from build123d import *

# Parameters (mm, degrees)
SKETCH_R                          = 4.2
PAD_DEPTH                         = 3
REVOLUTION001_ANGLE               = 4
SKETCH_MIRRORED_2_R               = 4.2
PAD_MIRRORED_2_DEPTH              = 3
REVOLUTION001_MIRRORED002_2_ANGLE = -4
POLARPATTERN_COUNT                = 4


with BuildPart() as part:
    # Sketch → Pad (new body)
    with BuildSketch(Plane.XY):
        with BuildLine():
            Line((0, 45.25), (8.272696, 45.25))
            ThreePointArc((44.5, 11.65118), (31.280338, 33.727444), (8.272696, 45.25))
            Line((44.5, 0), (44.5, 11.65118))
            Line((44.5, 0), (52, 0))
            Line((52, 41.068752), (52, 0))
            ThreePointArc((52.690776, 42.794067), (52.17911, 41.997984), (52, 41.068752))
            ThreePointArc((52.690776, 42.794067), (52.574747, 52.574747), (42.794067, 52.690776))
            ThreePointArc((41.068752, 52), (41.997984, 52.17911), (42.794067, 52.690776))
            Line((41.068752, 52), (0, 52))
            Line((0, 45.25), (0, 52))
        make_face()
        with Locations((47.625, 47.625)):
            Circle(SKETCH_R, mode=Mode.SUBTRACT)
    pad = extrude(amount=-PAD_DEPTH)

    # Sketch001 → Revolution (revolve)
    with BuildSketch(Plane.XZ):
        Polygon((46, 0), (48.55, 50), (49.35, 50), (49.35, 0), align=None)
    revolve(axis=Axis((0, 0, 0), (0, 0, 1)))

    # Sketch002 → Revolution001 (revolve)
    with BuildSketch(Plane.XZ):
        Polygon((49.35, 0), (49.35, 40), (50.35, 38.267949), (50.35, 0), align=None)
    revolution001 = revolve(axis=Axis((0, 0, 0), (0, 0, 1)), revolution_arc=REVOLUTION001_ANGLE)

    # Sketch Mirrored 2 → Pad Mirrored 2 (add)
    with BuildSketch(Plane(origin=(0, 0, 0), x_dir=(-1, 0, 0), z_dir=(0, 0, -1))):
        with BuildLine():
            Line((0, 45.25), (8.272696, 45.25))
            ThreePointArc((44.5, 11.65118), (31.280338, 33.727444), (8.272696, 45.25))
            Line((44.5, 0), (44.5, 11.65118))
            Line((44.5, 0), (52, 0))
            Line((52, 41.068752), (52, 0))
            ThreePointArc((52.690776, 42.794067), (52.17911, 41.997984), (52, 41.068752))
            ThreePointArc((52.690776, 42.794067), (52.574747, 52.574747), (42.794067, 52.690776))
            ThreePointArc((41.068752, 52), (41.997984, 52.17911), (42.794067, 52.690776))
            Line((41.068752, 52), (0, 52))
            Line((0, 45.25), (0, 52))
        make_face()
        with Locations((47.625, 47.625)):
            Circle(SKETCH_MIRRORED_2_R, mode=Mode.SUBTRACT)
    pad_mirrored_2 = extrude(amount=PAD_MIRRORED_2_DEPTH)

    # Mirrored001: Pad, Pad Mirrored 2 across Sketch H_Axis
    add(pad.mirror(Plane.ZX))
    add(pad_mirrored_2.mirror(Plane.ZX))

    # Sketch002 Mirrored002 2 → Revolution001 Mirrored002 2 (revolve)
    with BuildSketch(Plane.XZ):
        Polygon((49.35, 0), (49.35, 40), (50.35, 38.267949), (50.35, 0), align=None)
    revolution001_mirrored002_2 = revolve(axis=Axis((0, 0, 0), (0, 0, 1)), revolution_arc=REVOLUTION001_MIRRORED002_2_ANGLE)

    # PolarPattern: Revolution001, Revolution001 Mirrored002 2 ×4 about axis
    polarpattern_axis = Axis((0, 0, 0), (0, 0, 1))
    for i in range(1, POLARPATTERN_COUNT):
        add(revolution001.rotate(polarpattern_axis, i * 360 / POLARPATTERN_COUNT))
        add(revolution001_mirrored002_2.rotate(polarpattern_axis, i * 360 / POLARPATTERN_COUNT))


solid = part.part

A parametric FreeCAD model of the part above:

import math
import FreeCAD as App
import Part
import Sketcher

V = App.Vector
Q = App.Units.Quantity

doc = App.newDocument("Part")
body = doc.addObject("PartDesign::Body", "Body")

# Sketch on XY plane
sketch1 = doc.addObject("Sketcher::SketchObject", "Sketch")
body.addObject(sketch1)
sketch1.AttachmentSupport = (doc.XY_Plane, [""])
sketch1.MapMode = "FlatFace"
sketch1.addGeometry([
    Part.LineSegment(V(0, 45.2, 0), V(8.3, 45.2, 0)),  # 0
    Part.ArcOfCircle(Part.Circle(V(0, 0, 0), V(0, 0, 1), 46), math.radians(15), math.radians(80)),  # 1
    Part.LineSegment(V(44.5, 11.7, 0), V(44.5, 0, 0)),  # 2
    Part.LineSegment(V(44.5, 0, 0), V(52, 0, 0)),  # 3
    Part.LineSegment(V(52, 0, 0), V(52, 41.1, 0)),  # 4
    Part.ArcOfCircle(Part.Circle(V(54.5, 41.1, 0), V(0, 0, 1), 2.5), math.radians(136), math.radians(180)),  # 5
    Part.ArcOfCircle(Part.Circle(V(47.6, 47.6, 0), V(0, 0, 1), 7), math.radians(-44), math.radians(134)),  # 6
    Part.ArcOfCircle(Part.Circle(V(41.1, 54.5, 0), V(0, 0, 1), 2.5), math.radians(-90), math.radians(-46)),  # 7
    Part.LineSegment(V(41.1, 52, 0), V(0, 52, 0)),  # 8
    Part.LineSegment(V(0, 52, 0), V(0, 45.2, 0)),  # 9
    Part.Circle(V(47.6, 47.6, 0), V(0, 0, 1), 4.2),  # 10
], False)
sketch1.addConstraint([
    Sketcher.Constraint("Coincident", 0, 2, 1, 2),
    Sketcher.Constraint("Coincident", 1, 1, 2, 1),
    Sketcher.Constraint("Coincident", 2, 2, 3, 1),
    Sketcher.Constraint("Coincident", 3, 2, 4, 1),
    Sketcher.Constraint("Tangent", 4, 2, 5, 2),
    Sketcher.Constraint("Coincident", 5, 1, 6, 1),
    Sketcher.Constraint("Coincident", 6, 2, 7, 2),
    Sketcher.Constraint("Tangent", 7, 1, 8, 1),
    Sketcher.Constraint("Coincident", 8, 2, 9, 1),
    Sketcher.Constraint("Coincident", 9, 2, 0, 1),
    Sketcher.Constraint("Horizontal", 0),
    Sketcher.Constraint("Vertical", 2),
    Sketcher.Constraint("Horizontal", 3),
    Sketcher.Constraint("Vertical", 4),
    Sketcher.Constraint("Horizontal", 8),
    Sketcher.Constraint("Vertical", 9),
    Sketcher.Constraint("Coincident", 1, 3, -1, 1),
    Sketcher.Constraint("Coincident", 10, 3, 6, 3),
    Sketcher.Constraint("Equal", 5, 7),
    Sketcher.Constraint("PointOnObject", 2, 2, -1),
    Sketcher.Constraint("PointOnObject", 8, 2, -2),
    Sketcher.Constraint("Equal", 8, 4),
    Sketcher.Constraint("Radius", 1, 45.999998),
    Sketcher.Constraint("Radius", 6, 7.0),
    Sketcher.Constraint("Diameter", 10, 8.4),
    Sketcher.Constraint("Radius", 5, 2.499998),
    Sketcher.Constraint("DistanceX", 3, 1, 3, 2, 7.5),
    Sketcher.Constraint("DistanceX", -1, 1, 3, 2, 52.0),
    Sketcher.Constraint("DistanceY", -1, 1, 7, 1, 52.0),
    Sketcher.Constraint("DistanceY", 9, 2, 9, 1, 6.75),
    Sketcher.Constraint("DistanceX", -1, 1, 6, 3, 47.625),
    Sketcher.Constraint("DistanceY", 5, 1, 7, 3, 11.705931),
    Sketcher.Constraint("DistanceX", 6, 2, 5, 1, 9.896709),
])
pad1 = doc.addObject("PartDesign::Pad", "Pad")
body.addObject(pad1)
pad1.Profile = sketch1
pad1.Length = 3
pad1.Reversed = True

# Sketch on XZ plane
sketch2 = doc.addObject("Sketcher::SketchObject", "Sketch001")
body.addObject(sketch2)
sketch2.AttachmentSupport = (doc.XZ_Plane, [""])
sketch2.MapMode = "FlatFace"
sketch2.addGeometry([
    Part.LineSegment(V(48.5, 50, 0), V(46, 0, 0)),
    Part.LineSegment(V(46, 0, 0), V(49.4, 0, 0)),
    Part.LineSegment(V(49.4, 0, 0), V(49.4, 50, 0)),
    Part.LineSegment(V(49.4, 50, 0), V(48.5, 50, 0)),
], False)
sketch2.addConstraint([
    Sketcher.Constraint("Coincident", 0, 2, 1, 1),
    Sketcher.Constraint("Coincident", 1, 2, 2, 1),
    Sketcher.Constraint("Coincident", 2, 2, 3, 1),
    Sketcher.Constraint("Coincident", 3, 2, 0, 1),
    Sketcher.Constraint("Horizontal", 1),
    Sketcher.Constraint("Vertical", 2),
    Sketcher.Constraint("Horizontal", 3),
    Sketcher.Constraint("PointOnObject", 0, 2, -1),
    Sketcher.Constraint("DistanceY", 2, 1, 2, 2, 50.0),
    Sketcher.Constraint("DistanceX", 3, 2, 3, 1, 0.8),
    Sketcher.Constraint("DistanceX", -1, 1, 0, 2, 46.0),
    Sketcher.Constraint("DistanceX", 1, 1, 1, 2, 3.35),
])
revolution = doc.addObject("PartDesign::Revolution", "Revolution")
body.addObject(revolution)
revolution.Profile = sketch2
revolution.ReferenceAxis = (sketch2, ["V_Axis"])
revolution.Angle = 360

# Sketch on XZ plane
sketch3 = doc.addObject("Sketcher::SketchObject", "Sketch002")
body.addObject(sketch3)
sketch3.AttachmentSupport = (doc.XZ_Plane, [""])
sketch3.MapMode = "FlatFace"
sketch3.addGeometry([
    Part.LineSegment(V(49.4, 40, 0), V(49.4, 0, 0)),
    Part.LineSegment(V(49.4, 0, 0), V(50.4, 0, 0)),
    Part.LineSegment(V(50.4, 0, 0), V(50.4, 38.3, 0)),
    Part.LineSegment(V(50.4, 38.3, 0), V(49.4, 40, 0)),
], False)
sketch3.addConstraint([
    Sketcher.Constraint("Coincident", 0, 2, 1, 1),
    Sketcher.Constraint("Coincident", 1, 2, 2, 1),
    Sketcher.Constraint("Coincident", 2, 2, 3, 1),
    Sketcher.Constraint("Coincident", 3, 2, 0, 1),
    Sketcher.Constraint("Vertical", 0),
    Sketcher.Constraint("Horizontal", 1),
    Sketcher.Constraint("Vertical", 2),
    Sketcher.Constraint("PointOnObject", 0, 2, -1),
    Sketcher.Constraint("DistanceX", 1, 1, 1, 2, 1.0),
    Sketcher.Constraint("DistanceY", 0, 2, 0, 1, 40.0),
    Sketcher.Constraint("Angle", 3, Q("119.999997 deg")),
    Sketcher.Constraint("DistanceX", -1, 1, 0, 2, 49.35),
])
revolution2 = doc.addObject("PartDesign::Revolution", "Revolution001")
body.addObject(revolution2)
revolution2.Profile = sketch3
revolution2.ReferenceAxis = (sketch3, ["V_Axis"])
revolution2.Angle = 4

# Sketch on XY plane
sketch4 = doc.addObject("Sketcher::SketchObject", "Sketch003")
body.addObject(sketch4)
sketch4.AttachmentSupport = (doc.XY_Plane, [""])
sketch4.MapMode = "FlatFace"
sketch4.addGeometry([
    Part.LineSegment(V(0, 45.2, 0), V(-8.3, 45.2, 0)),  # 0
    Part.ArcOfCircle(Part.Circle(V(0, 0, 0), V(0, 0, 1), 46), math.radians(100), math.radians(165)),  # 1
    Part.LineSegment(V(-44.5, 11.7, 0), V(-44.5, 0, 0)),  # 2
    Part.LineSegment(V(-44.5, 0, 0), V(-52, 0, 0)),  # 3
    Part.LineSegment(V(-52, 0, 0), V(-52, 41.1, 0)),  # 4
    Part.ArcOfCircle(Part.Circle(V(-54.5, 41.1, 0), V(0, 0, 1), 2.5), math.radians(0), math.radians(44)),  # 5
    Part.ArcOfCircle(Part.Circle(V(-47.6, 47.6, 0), V(0, 0, 1), 7), math.radians(46), math.radians(224)),  # 6
    Part.ArcOfCircle(Part.Circle(V(-41.1, 54.5, 0), V(0, 0, 1), 2.5), math.radians(-134), math.radians(-90)),  # 7
    Part.LineSegment(V(-41.1, 52, 0), V(0, 52, 0)),  # 8
    Part.LineSegment(V(0, 52, 0), V(0, 45.2, 0)),  # 9
    Part.Circle(V(-47.6, 47.6, 0), V(0, 0, 1), 4.2),  # 10
], False)
sketch4.addConstraint([
    Sketcher.Constraint("Coincident", 0, 2, 1, 1),
    Sketcher.Constraint("Coincident", 1, 2, 2, 1),
    Sketcher.Constraint("Coincident", 2, 2, 3, 1),
    Sketcher.Constraint("Coincident", 3, 2, 4, 1),
    Sketcher.Constraint("Tangent", 4, 2, 5, 1),
    Sketcher.Constraint("Coincident", 5, 2, 6, 2),
    Sketcher.Constraint("Coincident", 6, 1, 7, 1),
    Sketcher.Constraint("Tangent", 7, 2, 8, 1),
    Sketcher.Constraint("Coincident", 8, 2, 9, 1),
    Sketcher.Constraint("Coincident", 9, 2, 0, 1),
    Sketcher.Constraint("Horizontal", 0),
    Sketcher.Constraint("Vertical", 2),
    Sketcher.Constraint("Horizontal", 3),
    Sketcher.Constraint("Vertical", 4),
    Sketcher.Constraint("Horizontal", 8),
    Sketcher.Constraint("Vertical", 9),
    Sketcher.Constraint("Coincident", 1, 3, -1, 1),
    Sketcher.Constraint("Coincident", 10, 3, 6, 3),
    Sketcher.Constraint("Equal", 5, 7),
    Sketcher.Constraint("PointOnObject", 2, 2, -1),
    Sketcher.Constraint("PointOnObject", 8, 2, -2),
    Sketcher.Constraint("Equal", 8, 4),
    Sketcher.Constraint("Radius", 1, 45.999998),
    Sketcher.Constraint("Radius", 6, 7.0),
    Sketcher.Constraint("Diameter", 10, 8.4),
    Sketcher.Constraint("Radius", 5, 2.499998),
    Sketcher.Constraint("DistanceX", 3, 2, 3, 1, 7.5),
    Sketcher.Constraint("DistanceX", 3, 2, -1, 1, 52.0),
    Sketcher.Constraint("DistanceY", -1, 1, 7, 2, 52.0),
    Sketcher.Constraint("DistanceY", 9, 2, 9, 1, 6.75),
    Sketcher.Constraint("DistanceX", 6, 3, -1, 1, 47.625),
    Sketcher.Constraint("DistanceY", 5, 2, 7, 3, 11.705931),
    Sketcher.Constraint("DistanceX", 5, 2, 6, 1, 9.896709),
])
pad2 = doc.addObject("PartDesign::Pad", "Pad001")
body.addObject(pad2)
pad2.Profile = sketch4
pad2.Length = 3
pad2.Reversed = True
doc.recompute()

mirrored = doc.addObject("PartDesign::Mirrored", "Mirrored")
body.addObject(mirrored)
mirrored.Originals = [pad1, pad2]
mirrored.MirrorPlane = (doc.XZ_Plane, [""])
body.Tip = mirrored

# Sketch on XZ plane
sketch5 = doc.addObject("Sketcher::SketchObject", "Sketch004")
body.addObject(sketch5)
sketch5.AttachmentSupport = (doc.XZ_Plane, [""])
sketch5.MapMode = "FlatFace"
sketch5.addGeometry([
    Part.LineSegment(V(49.4, 40, 0), V(49.4, 0, 0)),
    Part.LineSegment(V(49.4, 0, 0), V(50.4, 0, 0)),
    Part.LineSegment(V(50.4, 0, 0), V(50.4, 38.3, 0)),
    Part.LineSegment(V(50.4, 38.3, 0), V(49.4, 40, 0)),
], False)
sketch5.addConstraint([
    Sketcher.Constraint("Coincident", 0, 2, 1, 1),
    Sketcher.Constraint("Coincident", 1, 2, 2, 1),
    Sketcher.Constraint("Coincident", 2, 2, 3, 1),
    Sketcher.Constraint("Coincident", 3, 2, 0, 1),
    Sketcher.Constraint("Vertical", 0),
    Sketcher.Constraint("Horizontal", 1),
    Sketcher.Constraint("Vertical", 2),
    Sketcher.Constraint("PointOnObject", 0, 2, -1),
    Sketcher.Constraint("DistanceX", 1, 1, 1, 2, 1.0),
    Sketcher.Constraint("DistanceY", 0, 2, 0, 1, 40.0),
    Sketcher.Constraint("Angle", 3, Q("119.999997 deg")),
    Sketcher.Constraint("DistanceX", -1, 1, 0, 2, 49.35),
])
revolution3 = doc.addObject("PartDesign::Revolution", "Revolution002")
body.addObject(revolution3)
revolution3.Profile = sketch5
revolution3.ReferenceAxis = (sketch5, ["V_Axis"])
revolution3.Angle = 4
revolution3.Reversed = True
doc.recompute()

polarpattern = doc.addObject("PartDesign::PolarPattern", "PolarPattern")
body.addObject(polarpattern)
polarpattern.Originals = [revolution2, revolution3]
polarpattern.Axis = (doc.Z_Axis, [""])
polarpattern.Angle = 360
polarpattern.Occurrences = 4
body.Tip = polarpattern

doc.recompute()
